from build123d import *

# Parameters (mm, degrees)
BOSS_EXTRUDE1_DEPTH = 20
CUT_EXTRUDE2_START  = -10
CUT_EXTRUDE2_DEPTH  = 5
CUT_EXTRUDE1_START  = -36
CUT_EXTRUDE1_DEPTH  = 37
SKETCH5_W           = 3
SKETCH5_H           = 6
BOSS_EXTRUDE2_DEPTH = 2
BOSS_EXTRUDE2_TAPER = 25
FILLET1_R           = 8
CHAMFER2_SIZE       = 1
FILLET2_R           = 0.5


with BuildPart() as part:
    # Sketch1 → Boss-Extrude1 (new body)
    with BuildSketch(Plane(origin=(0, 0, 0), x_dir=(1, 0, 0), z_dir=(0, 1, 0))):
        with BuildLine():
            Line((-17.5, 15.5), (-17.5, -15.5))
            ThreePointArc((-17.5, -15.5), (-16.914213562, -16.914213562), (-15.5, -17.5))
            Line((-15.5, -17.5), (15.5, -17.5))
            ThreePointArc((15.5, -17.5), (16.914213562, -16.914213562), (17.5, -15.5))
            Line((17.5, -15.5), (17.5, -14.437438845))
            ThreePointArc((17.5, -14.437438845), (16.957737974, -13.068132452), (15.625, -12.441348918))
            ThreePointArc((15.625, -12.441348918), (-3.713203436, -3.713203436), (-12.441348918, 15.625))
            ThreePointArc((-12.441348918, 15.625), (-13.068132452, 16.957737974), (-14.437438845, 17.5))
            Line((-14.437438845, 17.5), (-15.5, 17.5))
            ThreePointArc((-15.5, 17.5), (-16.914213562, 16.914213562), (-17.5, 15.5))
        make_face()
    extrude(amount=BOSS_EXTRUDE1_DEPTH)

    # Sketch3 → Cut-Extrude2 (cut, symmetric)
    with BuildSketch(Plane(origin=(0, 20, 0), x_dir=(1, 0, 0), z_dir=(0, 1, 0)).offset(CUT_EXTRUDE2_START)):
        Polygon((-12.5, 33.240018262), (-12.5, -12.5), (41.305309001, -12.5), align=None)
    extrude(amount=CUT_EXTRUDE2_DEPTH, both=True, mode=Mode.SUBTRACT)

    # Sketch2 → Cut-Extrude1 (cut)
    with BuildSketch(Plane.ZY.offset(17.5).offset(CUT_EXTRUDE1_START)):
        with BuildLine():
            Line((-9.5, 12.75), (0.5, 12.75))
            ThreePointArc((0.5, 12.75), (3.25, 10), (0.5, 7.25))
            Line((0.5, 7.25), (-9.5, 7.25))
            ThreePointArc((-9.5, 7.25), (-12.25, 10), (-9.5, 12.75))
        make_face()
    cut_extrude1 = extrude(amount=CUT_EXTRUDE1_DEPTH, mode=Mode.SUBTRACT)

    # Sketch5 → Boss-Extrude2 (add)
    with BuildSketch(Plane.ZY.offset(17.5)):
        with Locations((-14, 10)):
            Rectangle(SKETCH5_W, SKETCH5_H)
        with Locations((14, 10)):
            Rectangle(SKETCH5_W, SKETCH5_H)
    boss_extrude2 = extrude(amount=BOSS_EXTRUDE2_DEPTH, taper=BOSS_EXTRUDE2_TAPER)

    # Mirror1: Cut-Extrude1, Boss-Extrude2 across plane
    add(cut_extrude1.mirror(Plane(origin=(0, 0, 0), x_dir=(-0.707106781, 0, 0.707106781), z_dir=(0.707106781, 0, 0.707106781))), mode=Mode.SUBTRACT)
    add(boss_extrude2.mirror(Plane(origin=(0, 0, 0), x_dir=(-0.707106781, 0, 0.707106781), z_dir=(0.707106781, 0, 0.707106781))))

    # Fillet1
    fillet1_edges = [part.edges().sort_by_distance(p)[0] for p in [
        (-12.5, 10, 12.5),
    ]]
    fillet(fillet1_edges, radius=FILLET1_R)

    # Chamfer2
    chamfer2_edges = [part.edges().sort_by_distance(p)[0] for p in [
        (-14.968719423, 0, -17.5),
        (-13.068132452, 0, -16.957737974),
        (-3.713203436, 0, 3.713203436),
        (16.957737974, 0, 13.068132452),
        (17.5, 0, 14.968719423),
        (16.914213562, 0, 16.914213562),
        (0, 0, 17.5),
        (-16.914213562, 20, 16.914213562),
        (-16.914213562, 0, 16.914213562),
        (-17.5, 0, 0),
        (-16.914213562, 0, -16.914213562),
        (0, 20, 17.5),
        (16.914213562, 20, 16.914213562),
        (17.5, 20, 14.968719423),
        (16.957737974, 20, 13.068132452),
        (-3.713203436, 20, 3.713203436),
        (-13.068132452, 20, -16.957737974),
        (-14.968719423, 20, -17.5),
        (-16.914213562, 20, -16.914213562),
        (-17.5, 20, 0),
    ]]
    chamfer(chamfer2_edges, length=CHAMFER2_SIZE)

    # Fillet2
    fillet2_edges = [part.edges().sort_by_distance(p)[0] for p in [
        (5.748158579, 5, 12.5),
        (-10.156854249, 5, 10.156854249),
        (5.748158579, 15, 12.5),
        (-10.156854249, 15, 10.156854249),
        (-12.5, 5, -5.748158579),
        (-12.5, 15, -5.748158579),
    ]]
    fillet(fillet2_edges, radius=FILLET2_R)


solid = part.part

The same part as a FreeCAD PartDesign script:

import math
import FreeCAD as App
import Part
import Sketcher

V = App.Vector
Q = App.Units.Quantity


def edges_at(feature, points):
    """Names of the edges that pass closest to the given points."""
    edges = feature.Shape.Edges
    near = lambda p: min(range(len(edges)), key=lambda i: edges[i].distToShape(Part.Vertex(*p))[0])
    return sorted({f"Edge{near(p) + 1}" for p in points})

doc = App.newDocument("Part")
params = doc.addObject("Spreadsheet::Sheet", "Params")
for row, (alias, value) in enumerate([
    ("sketch1_radius", "2 mm"),
    ("sketch1_radius2", "30 mm"),
    ("sketch1_width", "31 mm"),
    ("pad1_length", "20 mm"),
    ("pocket1_length", "10 mm"),
    ("sketch3_height", "10 mm"),
    ("sketch3_radius", "2.75 mm"),
    ("pocket2_length", "37 mm"),
    ("sketch4_width", "6 mm"),
    ("sketch4_height", "3 mm"),
    ("pad2_length", "2 mm"),
    ("pad2_taper", "-25 deg"),
    ("fillet_radius", "8 mm"),
    ("chamfer_size", "1 mm"),
    ("fillet2_radius", "0.5 mm"),
], start=1):
    params.set(f"A{row}", alias)
    params.set(f"B{row}", "=" + value)
    params.setAlias(f"B{row}", alias)

body = doc.addObject("PartDesign::Body", "Body")

sketch1 = body.newObject("Sketcher::SketchObject", "Sketch")
sketch1.AttachmentSupport = (doc.getObject("XZ_Plane"), [""])
sketch1.MapMode = "FlatFace"
sketch1.addGeometry([
    Part.LineSegment(V(-17.5, -15.5, 0), V(-17.5, 15.5, 0)),
    Part.ArcOfCircle(Part.Circle(V(-15.5, 15.5, 0), V(0, 0, 1), 2), math.radians(90), math.radians(180)),
    Part.LineSegment(V(-15.5, 17.5, 0), V(15.5, 17.5, 0)),
    Part.ArcOfCircle(Part.Circle(V(15.5, 15.5, 0), V(0, 0, 1), 2), math.radians(0), math.radians(90)),
    Part.LineSegment(V(17.5, 15.5, 0), V(17.5, 14.4, 0)),
    Part.ArcOfCircle(Part.Circle(V(15.5, 14.4, 0), V(0, 0, 1), 2), math.radians(-86), math.radians(0)),
    Part.ArcOfCircle(Part.Circle(V(17.5, -17.5, 0), V(0, 0, 1), 30), math.radians(94), math.radians(176)),
    Part.ArcOfCircle(Part.Circle(V(-14.4, -15.5, 0), V(0, 0, 1), 2), math.radians(-90), math.radians(-4)),
    Part.LineSegment(V(-14.4, -17.5, 0), V(-15.5, -17.5, 0)),
    Part.ArcOfCircle(Part.Circle(V(-15.5, -15.5, 0), V(0, 0, 1), 2), math.radians(-180), math.radians(-90)),
], False)
sketch1.addConstraint([
    Sketcher.Constraint("Tangent", 0, 2, 1, 2),
    Sketcher.Constraint("Tangent", 1, 1, 2, 1),
    Sketcher.Constraint("Tangent", 2, 2, 3, 2),
    Sketcher.Constraint("Tangent", 3, 1, 4, 1),
    Sketcher.Constraint("Tangent", 4, 2, 5, 2),
    Sketcher.Constraint("Tangent", 5, 1, 6, 1),
    Sketcher.Constraint("Tangent", 6, 2, 7, 2),
    Sketcher.Constraint("Tangent", 7, 1, 8, 1),
    Sketcher.Constraint("Tangent", 8, 2, 9, 2),
    Sketcher.Constraint("Tangent", 9, 1, 0, 1),
    Sketcher.Constraint("Vertical", 0),
    Sketcher.Constraint("Horizontal", 2),
    Sketcher.Constraint("Vertical", 4),
    Sketcher.Constraint("Horizontal", 8),
    Sketcher.Constraint("Equal", 1, 3),
    Sketcher.Constraint("Equal", 3, 5),
    Sketcher.Constraint("Equal", 5, 7),
    Sketcher.Constraint("Equal", 7, 9),
    Sketcher.Constraint("Symmetric", 3, 3, 9, 3, -1, 1),
    Sketcher.Constraint("Horizontal", 6, 3, 7, 1),
    Sketcher.Constraint("Vertical", 6, 3, 3, 1),
    Sketcher.Constraint("Equal", 2, 0),
    Sketcher.Constraint("Radius", 1, Q("2 mm")),
    Sketcher.Constraint("Radius", 6, Q("30 mm")),
    Sketcher.Constraint("DistanceX", 2, 1, 2, 2, Q("31 mm")),
])
sketch1.setExpression("Constraints[22]", "Params.sketch1_radius")
sketch1.setExpression("Constraints[23]", "Params.sketch1_radius2")
sketch1.setExpression("Constraints[24]", "Params.sketch1_width")
pad1 = body.newObject("PartDesign::Pad", "Pad")
pad1.Profile = sketch1
pad1.setExpression("Length", "Params.pad1_length")
pad1.Reversed = True

sketch2 = body.newObject("Sketcher::SketchObject", "Sketch001")
sketch2.AttachmentSupport = (doc.getObject("XZ_Plane"), [""])
sketch2.MapMode = "FlatFace"
sketch2.AttachmentOffset = App.Placement(V(0, 0, -10), App.Rotation())
sketch2.addGeometry([
    Part.LineSegment(V(-12, -33, 0), V(-12, 12, 0)),
    Part.LineSegment(V(-12, 12, 0), V(41, 12, 0)),
    Part.LineSegment(V(41, 12, 0), V(-12, -33, 0)),
], False)
sketch2.addConstraint([
    Sketcher.Constraint("Coincident", 0, 2, 1, 1),
    Sketcher.Constraint("Coincident", 1, 2, 2, 1),
    Sketcher.Constraint("Coincident", 2, 2, 0, 1),
    Sketcher.Constraint("Vertical", 0),
    Sketcher.Constraint("Horizontal", 1),
    Sketcher.Constraint("DistanceX", 0, 2, -1, 1, Q("12.5 mm")),
    Sketcher.Constraint("DistanceY", -1, 1, 0, 2, Q("12.5 mm")),
    Sketcher.Constraint("DistanceX", 1, 1, 1, 2, Q("53.805309 mm")),
    Sketcher.Constraint("DistanceY", 0, 1, 0, 2, Q("45.740018 mm")),
])
pocket1 = body.newObject("PartDesign::Pocket", "Pocket")
pocket1.Profile = sketch2
pocket1.setExpression("Length", "Params.pocket1_length")
pocket1.Midplane = True

sketch3 = body.newObject("Sketcher::SketchObject", "Sketch002")
sketch3.AttachmentSupport = (doc.getObject("YZ_Plane"), [""])
sketch3.MapMode = "FlatFace"
sketch3.AttachmentOffset = App.Placement(V(0, 0, 18.5), App.Rotation())
sketch3.addGeometry([
    Part.LineSegment(V(12.8, 0.5, 0), V(12.8, -9.5, 0)),
    Part.ArcOfCircle(Part.Circle(V(10, -9.5, 0), V(0, 0, 1), 2.8), math.radians(180), math.radians(360)),
    Part.LineSegment(V(7.2, -9.5, 0), V(7.2, 0.5, 0)),
    Part.ArcOfCircle(Part.Circle(V(10, 0.5, 0), V(0, 0, 1), 2.8), math.radians(0), math.radians(180)),
], False)
sketch3.addConstraint([
    Sketcher.Constraint("Tangent", 0, 2, 1, 2),
    Sketcher.Constraint("Tangent", 1, 1, 2, 1),
    Sketcher.Constraint("Tangent", 2, 2, 3, 2),
    Sketcher.Constraint("Tangent", 3, 1, 0, 1),
    Sketcher.Constraint("Vertical", 0),
    Sketcher.Constraint("Vertical", 2),
    Sketcher.Constraint("DistanceY", 0, 2, 0, 1, Q("10 mm")),
    Sketcher.Constraint("Radius", 1, Q("2.75 mm")),
    Sketcher.Constraint("DistanceX", -1, 1, 1, 3, Q("10 mm")),
    Sketcher.Constraint("DistanceY", 1, 3, -1, 1, Q("9.5 mm")),
])
sketch3.setExpression("Constraints[6]", "Params.sketch3_height")
sketch3.setExpression("Constraints[7]", "Params.sketch3_radius")
pocket2 = body.newObject("PartDesign::Pocket", "Pocket001")
pocket2.Profile = sketch3
pocket2.setExpression("Length", "Params.pocket2_length")

sketch4 = body.newObject("Sketcher::SketchObject", "Sketch003")
sketch4.AttachmentSupport = (doc.getObject("YZ_Plane"), [""])
sketch4.MapMode = "FlatFace"
sketch4.AttachmentOffset = App.Placement(V(0, 0, -17.5), App.Rotation())
sketch4.addGeometry([
    Part.LineSegment(V(13, -15.5, 0), V(7, -15.5, 0)),
    Part.LineSegment(V(7, -15.5, 0), V(7, -12.5, 0)),
    Part.LineSegment(V(7, -12.5, 0), V(13, -12.5, 0)),
    Part.LineSegment(V(13, -12.5, 0), V(13, -15.5, 0)),
    Part.LineSegment(V(13, 12.5, 0), V(7, 12.5, 0)),
    Part.LineSegment(V(7, 12.5, 0), V(7, 15.5, 0)),
    Part.LineSegment(V(7, 15.5, 0), V(13, 15.5, 0)),
    Part.LineSegment(V(13, 15.5, 0), V(13, 12.5, 0)),
], False)
sketch4.addConstraint([
    Sketcher.Constraint("Coincident", 0, 2, 1, 1),
    Sketcher.Constraint("Coincident", 1, 2, 2, 1),
    Sketcher.Constraint("Coincident", 2, 2, 3, 1),
    Sketcher.Constraint("Coincident", 3, 2, 0, 1),
    Sketcher.Constraint("Coincident", 4, 2, 5, 1),
    Sketcher.Constraint("Coincident", 5, 2, 6, 1),
    Sketcher.Constraint("Coincident", 6, 2, 7, 1),
    Sketcher.Constraint("Coincident", 7, 2, 4, 1),
    Sketcher.Constraint("Horizontal", 0),
    Sketcher.Constraint("Vertical", 1),
    Sketcher.Constraint("Horizontal", 2),
    Sketcher.Constraint("Vertical", 3),
    Sketcher.Constraint("Horizontal", 4),
    Sketcher.Constraint("Vertical", 5),
    Sketcher.Constraint("Horizontal", 6),
    Sketcher.Constraint("Vertical", 7),
    Sketcher.Constraint("Symmetric", 1, 2, 4, 2, -1),
    Sketcher.Constraint("Symmetric", 3, 2, 6, 2, -1),
    Sketcher.Constraint("DistanceX", 0, 2, 0, 1, Q("6 mm")),
    Sketcher.Constraint("DistanceY", 1, 1, 1, 2, Q("3 mm")),
    Sketcher.Constraint("DistanceX", -1, 1, 0, 2, Q("7 mm")),
    Sketcher.Constraint("DistanceY", 1, 2, 4, 2, Q("25 mm")),
])
sketch4.setExpression("Constraints[18]", "Params.sketch4_width")
sketch4.setExpression("Constraints[19]", "Params.sketch4_height")
pad2 = body.newObject("PartDesign::Pad", "Pad001")
pad2.Profile = sketch4
pad2.setExpression("Length", "Params.pad2_length")
pad2.Reversed = True
pad2.setExpression("TaperAngle", "Params.pad2_taper")
doc.recompute()

datumplane = body.newObject("PartDesign::Plane", "DatumPlane")
datumplane.Placement = App.Placement(V(0, 0, 0), App.Rotation(V(-0.707106781, 0, 0.707106781), V(0, -1, 0), V(0.707106781, 0, 0.707106781), "ZXY"))
mirrored = body.newObject("PartDesign::Mirrored", "Mirrored")
mirrored.Originals = [pocket2, pad2]
mirrored.MirrorPlane = (datumplane, [""])
body.Tip = mirrored
doc.recompute()

fillet = body.newObject("PartDesign::Fillet", "Fillet")
fillet.Base = (mirrored, edges_at(mirrored, [(-12.5, 10, 12.5)]))
fillet.setExpression("Radius", "Params.fillet_radius")
doc.recompute()

chamfer = body.newObject("PartDesign::Chamfer", "Chamfer")
chamfer.Base = (fillet, edges_at(fillet, [
    (-14.969, 0, -17.5),
    (-13.068, 0, -16.958),
    (-3.713, 0, 3.713),
    (16.958, 0, 13.068),
    (17.5, 0, 14.969),
    (16.914, 0, 16.914),
    (0, 0, 17.5),
    (-16.914, 20, 16.914),
    (-16.914, 0, 16.914),
    (-17.5, 0, 0),
    (-16.914, 0, -16.914),
    (0, 20, 17.5),
    (16.914, 20, 16.914),
    (17.5, 20, 14.969),
    (16.958, 20, 13.068),
    (-3.713, 20, 3.713),
    (-13.068, 20, -16.958),
    (-14.969, 20, -17.5),
    (-16.914, 20, -16.914),
    (-17.5, 20, 0),
]))
chamfer.setExpression("Size", "Params.chamfer_size")
doc.recompute()

fillet2 = body.newObject("PartDesign::Fillet", "Fillet001")
fillet2.Base = (chamfer, edges_at(chamfer, [
    (5.748, 5, 12.5),
    (-10.157, 5, 10.157),
    (5.748, 15, 12.5),
    (-10.157, 15, 10.157),
    (-12.5, 5, -5.748),
    (-12.5, 15, -5.748),
]))
fillet2.setExpression("Radius", "Params.fillet2_radius")

doc.recompute()
